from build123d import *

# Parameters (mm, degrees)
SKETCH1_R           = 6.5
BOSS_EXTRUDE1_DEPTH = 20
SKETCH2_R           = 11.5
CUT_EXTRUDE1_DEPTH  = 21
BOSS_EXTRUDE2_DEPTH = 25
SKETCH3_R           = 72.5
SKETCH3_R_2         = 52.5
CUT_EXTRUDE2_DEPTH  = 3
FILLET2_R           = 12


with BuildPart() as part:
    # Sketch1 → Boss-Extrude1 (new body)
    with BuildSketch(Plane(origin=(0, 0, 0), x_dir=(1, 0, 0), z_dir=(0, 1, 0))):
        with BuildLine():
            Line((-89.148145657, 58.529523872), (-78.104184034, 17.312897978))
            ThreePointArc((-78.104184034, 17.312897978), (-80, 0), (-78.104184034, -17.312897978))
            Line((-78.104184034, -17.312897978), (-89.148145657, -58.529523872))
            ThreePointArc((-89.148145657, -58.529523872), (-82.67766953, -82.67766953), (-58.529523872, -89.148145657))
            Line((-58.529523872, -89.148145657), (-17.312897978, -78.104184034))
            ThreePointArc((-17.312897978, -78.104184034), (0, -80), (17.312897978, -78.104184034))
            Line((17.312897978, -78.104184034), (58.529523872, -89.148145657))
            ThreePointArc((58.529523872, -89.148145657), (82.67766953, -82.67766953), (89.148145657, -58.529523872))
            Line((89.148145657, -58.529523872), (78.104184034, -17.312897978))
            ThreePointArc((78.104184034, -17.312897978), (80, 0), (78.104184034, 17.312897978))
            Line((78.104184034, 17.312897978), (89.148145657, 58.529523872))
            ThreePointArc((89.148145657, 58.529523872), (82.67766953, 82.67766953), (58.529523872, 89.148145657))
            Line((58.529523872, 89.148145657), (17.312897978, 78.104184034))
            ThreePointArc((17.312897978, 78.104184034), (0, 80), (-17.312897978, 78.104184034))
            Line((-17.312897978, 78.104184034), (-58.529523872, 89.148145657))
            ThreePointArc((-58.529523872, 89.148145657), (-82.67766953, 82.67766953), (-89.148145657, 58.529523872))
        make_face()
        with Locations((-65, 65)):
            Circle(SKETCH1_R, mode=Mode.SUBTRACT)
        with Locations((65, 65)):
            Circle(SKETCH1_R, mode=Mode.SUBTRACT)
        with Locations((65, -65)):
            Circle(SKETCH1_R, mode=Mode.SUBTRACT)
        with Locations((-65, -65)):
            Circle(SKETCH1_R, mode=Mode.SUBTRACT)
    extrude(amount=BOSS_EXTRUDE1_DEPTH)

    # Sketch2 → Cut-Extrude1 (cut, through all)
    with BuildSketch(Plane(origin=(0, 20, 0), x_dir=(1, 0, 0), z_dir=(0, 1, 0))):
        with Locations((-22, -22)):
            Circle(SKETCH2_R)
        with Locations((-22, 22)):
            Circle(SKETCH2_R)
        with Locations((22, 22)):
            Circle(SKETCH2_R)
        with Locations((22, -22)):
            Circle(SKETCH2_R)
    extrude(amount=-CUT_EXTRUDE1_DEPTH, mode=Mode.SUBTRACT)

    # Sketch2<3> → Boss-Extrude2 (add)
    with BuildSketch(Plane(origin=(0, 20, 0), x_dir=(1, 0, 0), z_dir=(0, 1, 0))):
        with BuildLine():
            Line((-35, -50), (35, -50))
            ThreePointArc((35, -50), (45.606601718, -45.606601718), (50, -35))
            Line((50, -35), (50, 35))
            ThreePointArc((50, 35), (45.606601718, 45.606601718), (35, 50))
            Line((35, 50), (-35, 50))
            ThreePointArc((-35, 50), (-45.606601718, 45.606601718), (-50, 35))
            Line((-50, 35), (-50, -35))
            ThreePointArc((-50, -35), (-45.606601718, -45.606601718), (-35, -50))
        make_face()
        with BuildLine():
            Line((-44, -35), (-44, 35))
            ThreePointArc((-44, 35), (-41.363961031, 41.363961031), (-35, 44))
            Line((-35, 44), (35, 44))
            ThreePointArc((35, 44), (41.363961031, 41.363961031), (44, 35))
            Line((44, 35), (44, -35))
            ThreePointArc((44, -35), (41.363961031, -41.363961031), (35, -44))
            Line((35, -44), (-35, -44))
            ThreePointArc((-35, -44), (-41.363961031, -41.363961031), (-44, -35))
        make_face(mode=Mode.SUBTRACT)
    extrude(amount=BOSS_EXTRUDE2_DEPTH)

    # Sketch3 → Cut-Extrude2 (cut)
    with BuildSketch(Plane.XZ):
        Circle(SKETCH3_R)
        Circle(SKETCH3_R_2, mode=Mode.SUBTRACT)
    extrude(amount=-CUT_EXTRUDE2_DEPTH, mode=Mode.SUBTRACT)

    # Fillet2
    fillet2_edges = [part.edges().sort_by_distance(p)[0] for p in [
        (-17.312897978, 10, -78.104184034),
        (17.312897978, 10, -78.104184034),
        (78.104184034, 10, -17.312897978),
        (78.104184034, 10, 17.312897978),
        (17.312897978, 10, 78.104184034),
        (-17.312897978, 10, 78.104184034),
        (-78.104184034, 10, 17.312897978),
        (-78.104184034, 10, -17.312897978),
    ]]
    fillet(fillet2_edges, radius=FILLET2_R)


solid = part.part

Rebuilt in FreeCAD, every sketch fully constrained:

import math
import FreeCAD as App
import Part
import Sketcher

V = App.Vector
Q = App.Units.Quantity


def edges_at(feature, points):
    """Names of the edges that pass closest to the given points."""
    edges = feature.Shape.Edges
    near = lambda p: min(range(len(edges)), key=lambda i: edges[i].distToShape(Part.Vertex(*p))[0])
    return sorted({f"Edge{near(p) + 1}" for p in points})

doc = App.newDocument("Part")
body = doc.addObject("PartDesign::Body", "Body")

# Sketch on XZ plane
sketch1 = body.newObject("Sketcher::SketchObject", "Sketch")
sketch1.AttachmentSupport = (doc.getObject("XZ_Plane"), [""])
sketch1.MapMode = "FlatFace"
sketch1.addGeometry([
    Part.LineSegment(V(-89.148146, -58.529524, 0), V(-78.104184, -17.312898, 0)),  # 0
    Part.ArcOfCircle(Part.Circle(V(0, 0, 0), V(0, 0, 1), 80), math.radians(167.501666), math.radians(192.498334)),  # 1
    Part.LineSegment(V(-78.104184, 17.312898, 0), V(-89.148146, 58.529524, 0)),  # 2
    Part.ArcOfCircle(Part.Circle(V(-65, 65, 0), V(0, 0, 1), 25), math.radians(75), math.radians(195)),  # 3
    Part.LineSegment(V(-58.529524, 89.148146, 0), V(-17.312898, 78.104184, 0)),  # 4
    Part.ArcOfCircle(Part.Circle(V(0, 0, 0), V(0, 0, 1), 80), math.radians(77.501666), math.radians(102.498334)),  # 5
    Part.LineSegment(V(17.312898, 78.104184, 0), V(58.529524, 89.148146, 0)),  # 6
    Part.ArcOfCircle(Part.Circle(V(65, 65, 0), V(0, 0, 1), 25), math.radians(-15), math.radians(105)),  # 7
    Part.LineSegment(V(89.148146, 58.529524, 0), V(78.104184, 17.312898, 0)),  # 8
    Part.ArcOfCircle(Part.Circle(V(0, 0, 0), V(0, 0, 1), 80), math.radians(-12.498334), math.radians(12.498334)),  # 9
    Part.LineSegment(V(78.104184, -17.312898, 0), V(89.148146, -58.529524, 0)),  # 10
    Part.ArcOfCircle(Part.Circle(V(65, -65, 0), V(0, 0, 1), 25), math.radians(-105), math.radians(15)),  # 11
    Part.LineSegment(V(58.529524, -89.148146, 0), V(17.312898, -78.104184, 0)),  # 12
    Part.ArcOfCircle(Part.Circle(V(0, 0, 0), V(0, 0, 1), 80), math.radians(-102.498334), math.radians(-77.501666)),  # 13
    Part.LineSegment(V(-17.312898, -78.104184, 0), V(-58.529524, -89.148146, 0)),  # 14
    Part.ArcOfCircle(Part.Circle(V(-65, -65, 0), V(0, 0, 1), 25), math.radians(165), math.radians(285)),  # 15
    Part.Circle(V(-65, 65, 0), V(0, 0, 1), 6.5),  # 16
    Part.Circle(V(65, 65, 0), V(0, 0, 1), 6.5),  # 17
    Part.Circle(V(-65, -65, 0), V(0, 0, 1), 6.5),  # 18
    Part.Circle(V(65, -65, 0), V(0, 0, 1), 6.5),  # 19
], False)
sketch1.addConstraint([
    Sketcher.Constraint("Coincident", 0, 2, 1, 2),
    Sketcher.Constraint("Coincident", 1, 1, 2, 1),
    Sketcher.Constraint("Tangent", 2, 2, 3, 2),
    Sketcher.Constraint("Tangent", 3, 1, 4, 1),
    Sketcher.Constraint("Coincident", 4, 2, 5, 2),
    Sketcher.Constraint("Coincident", 5, 1, 6, 1),
    Sketcher.Constraint("Tangent", 6, 2, 7, 2),
    Sketcher.Constraint("Tangent", 7, 1, 8, 1),
    Sketcher.Constraint("Coincident", 8, 2, 9, 2),
    Sketcher.Constraint("Coincident", 9, 1, 10, 1),
    Sketcher.Constraint("Tangent", 10, 2, 11, 2),
    Sketcher.Constraint("Tangent", 11, 1, 12, 1),
    Sketcher.Constraint("Coincident", 12, 2, 13, 2),
    Sketcher.Constraint("Coincident", 13, 1, 14, 1),
    Sketcher.Constraint("Tangent", 14, 2, 15, 2),
    Sketcher.Constraint("Tangent", 15, 1, 0, 1),
    Sketcher.Constraint("Coincident", 1, 3, -1, 1),
    Sketcher.Constraint("Coincident", 5, 3, -1, 1),
    Sketcher.Constraint("Coincident", 9, 3, -1, 1),
    Sketcher.Constraint("Coincident", 13, 3, -1, 1),
    Sketcher.Constraint("Coincident", 16, 3, 3, 3),
    Sketcher.Constraint("Coincident", 17, 3, 7, 3),
    Sketcher.Constraint("Coincident", 18, 3, 15, 3),
    Sketcher.Constraint("Coincident", 19, 3, 11, 3),
    Sketcher.Constraint("Equal", 1, 5),
    Sketcher.Constraint("Equal", 3, 7),
    Sketcher.Constraint("Equal", 5, 9),
    Sketcher.Constraint("Equal", 7, 11),
    Sketcher.Constraint("Equal", 9, 13),
    Sketcher.Constraint("Equal", 11, 15),
    Sketcher.Constraint("Equal", 16, 17),
    Sketcher.Constraint("Equal", 17, 18),
    Sketcher.Constraint("Equal", 18, 19),
    Sketcher.Constraint("Symmetric", 3, 3, 11, 3, -1, 1),
    Sketcher.Constraint("Symmetric", 7, 3, 15, 3, -1, 1),
    Sketcher.Constraint("Symmetric", 3, 3, 7, 3, -2),
    Sketcher.Constraint("Perpendicular", 0, 4),
    Sketcher.Constraint("Perpendicular", 2, 6),
    Sketcher.Constraint("Perpendicular", 4, 8),
    Sketcher.Constraint("Perpendicular", 6, 10),
    Sketcher.Constraint("Perpendicular", 8, 12),
    Sketcher.Constraint("Perpendicular", 10, 14),
    Sketcher.Constraint("Horizontal", 4, 2, 5, 1),
    Sketcher.Constraint("Equal", 2, 4),
    Sketcher.Constraint("Diameter", 16, 13.0),
    Sketcher.Constraint("Radius", 1, 80.0),
    Sketcher.Constraint("Radius", 3, 25.0),
    Sketcher.Constraint("Angle", 0, Q("75 deg")),
    Sketcher.Constraint("DistanceX", 3, 3, -1, 1, 65.0),
])
pad1 = body.newObject("PartDesign::Pad", "Pad")
pad1.Profile = sketch1
pad1.Length = 20
pad1.Reversed = True

# Sketch on XZ plane
sketch2 = body.newObject("Sketcher::SketchObject", "Sketch001")
sketch2.AttachmentSupport = (doc.getObject("XZ_Plane"), [""])
sketch2.MapMode = "FlatFace"
sketch2.AttachmentOffset = App.Placement(V(0, 0, -20), App.Rotation())
sketch2.addGeometry([
    Part.Circle(V(-22, 22, 0), V(0, 0, 1), 11.5),
    Part.Circle(V(-22, -22, 0), V(0, 0, 1), 11.5),
    Part.Circle(V(22, -22, 0), V(0, 0, 1), 11.5),
    Part.Circle(V(22, 22, 0), V(0, 0, 1), 11.5),
], False)
sketch2.addConstraint([
    Sketcher.Constraint("Equal", 0, 1),
    Sketcher.Constraint("Equal", 1, 2),
    Sketcher.Constraint("Equal", 2, 3),
    Sketcher.Constraint("Symmetric", 0, 3, 2, 3, -1, 1),
    Sketcher.Constraint("Symmetric", 1, 3, 3, 3, -1, 1),
    Sketcher.Constraint("Symmetric", 1, 3, 2, 3, -2),
    Sketcher.Constraint("Diameter", 0, 23.0),
    Sketcher.Constraint("DistanceX", 0, 3, -1, 1, 22.0),
    Sketcher.Constraint("DistanceY", -1, 1, 0, 3, 22.0),
])
pocket1 = body.newObject("PartDesign::Pocket", "Pocket")
pocket1.Profile = sketch2
pocket1.Type = "ThroughAll"
pocket1.Reversed = True

# Sketch on XZ plane
sketch3 = body.newObject("Sketcher::SketchObject", "Sketch002")
sketch3.AttachmentSupport = (doc.getObject("XZ_Plane"), [""])
sketch3.MapMode = "FlatFace"
sketch3.AttachmentOffset = App.Placement(V(0, 0, -20), App.Rotation())
sketch3.addGeometry([
    Part.LineSegment(V(-35, 50, 0), V(35, 50, 0)),  # 0
    Part.ArcOfCircle(Part.Circle(V(35, 35, 0), V(0, 0, 1), 15), math.radians(0), math.radians(90)),  # 1
    Part.LineSegment(V(50, 35, 0), V(50, -35, 0)),  # 2
    Part.ArcOfCircle(Part.Circle(V(35, -35, 0), V(0, 0, 1), 15), math.radians(-90), math.radians(0)),  # 3
    Part.LineSegment(V(35, -50, 0), V(-35, -50, 0)),  # 4
    Part.ArcOfCircle(Part.Circle(V(-35, -35, 0), V(0, 0, 1), 15), math.radians(180), math.radians(270)),  # 5
    Part.LineSegment(V(-50, -35, 0), V(-50, 35, 0)),  # 6
    Part.ArcOfCircle(Part.Circle(V(-35, 35, 0), V(0, 0, 1), 15), math.radians(90), math.radians(180)),  # 7
    Part.ArcOfCircle(Part.Circle(V(-35, 35, 0), V(0, 0, 1), 9), math.radians(90), math.radians(180)),  # 8
    Part.LineSegment(V(-44, 35, 0), V(-44, -35, 0)),  # 9
    Part.ArcOfCircle(Part.Circle(V(-35, -35, 0), V(0, 0, 1), 9), math.radians(180), math.radians(270)),  # 10
    Part.LineSegment(V(-35, -44, 0), V(35, -44, 0)),  # 11
    Part.ArcOfCircle(Part.Circle(V(35, -35, 0), V(0, 0, 1), 9), math.radians(-90), math.radians(0)),  # 12
    Part.LineSegment(V(44, -35, 0), V(44, 35, 0)),  # 13
    Part.ArcOfCircle(Part.Circle(V(35, 35, 0), V(0, 0, 1), 9), math.radians(0), math.radians(90)),  # 14
    Part.LineSegment(V(35, 44, 0), V(-35, 44, 0)),  # 15
], False)
sketch3.addConstraint([
    Sketcher.Constraint("Tangent", 0, 2, 1, 2),
    Sketcher.Constraint("Tangent", 1, 1, 2, 1),
    Sketcher.Constraint("Tangent", 2, 2, 3, 2),
    Sketcher.Constraint("Tangent", 3, 1, 4, 1),
    Sketcher.Constraint("Tangent", 4, 2, 5, 2),
    Sketcher.Constraint("Tangent", 5, 1, 6, 1),
    Sketcher.Constraint("Tangent", 6, 2, 7, 2),
    Sketcher.Constraint("Tangent", 7, 1, 0, 1),
    Sketcher.Constraint("Tangent", 8, 2, 9, 1),
    Sketcher.Constraint("Tangent", 9, 2, 10, 1),
    Sketcher.Constraint("Tangent", 10, 2, 11, 1),
    Sketcher.Constraint("Tangent", 11, 2, 12, 1),
    Sketcher.Constraint("Tangent", 12, 2, 13, 1),
    Sketcher.Constraint("Tangent", 13, 2, 14, 1),
    Sketcher.Constraint("Tangent", 14, 2, 15, 1),
    Sketcher.Constraint("Tangent", 15, 2, 8, 1),
    Sketcher.Constraint("Horizontal", 0),
    Sketcher.Constraint("Vertical", 2),
    Sketcher.Constraint("Horizontal", 4),
    Sketcher.Constraint("Vertical", 6),
    Sketcher.Constraint("Vertical", 9),
    Sketcher.Constraint("Horizontal", 11),
    Sketcher.Constraint("Vertical", 13),
    Sketcher.Constraint("Horizontal", 15),
    Sketcher.Constraint("Coincident", 8, 3, 7, 3),
    Sketcher.Constraint("Coincident", 10, 3, 5, 3),
    Sketcher.Constraint("Coincident", 12, 3, 3, 3),
    Sketcher.Constraint("Equal", 1, 3),
    Sketcher.Constraint("Equal", 3, 5),
    Sketcher.Constraint("Equal", 5, 7),
    Sketcher.Constraint("Equal", 12, 14),
    Sketcher.Constraint("Symmetric", 1, 3, 5, 3, -1, 1),
    Sketcher.Constraint("Equal", 15, 2),
    Sketcher.Constraint("Radius", 1, 15.0),
    Sketcher.Constraint("Radius", 8, 9.0),
    Sketcher.Constraint("DistanceX", 0, 1, 0, 2, 70.0),
])
pad2 = body.newObject("PartDesign::Pad", "Pad001")
pad2.Profile = sketch3
pad2.Length = 25
pad2.Reversed = True

# Sketch on XZ plane
sketch4 = body.newObject("Sketcher::SketchObject", "Sketch003")
sketch4.AttachmentSupport = (doc.getObject("XZ_Plane"), [""])
sketch4.MapMode = "FlatFace"
sketch4.addGeometry([
    Part.Circle(V(0, 0, 0), V(0, 0, 1), 72.5),
    Part.Circle(V(0, 0, 0), V(0, 0, 1), 52.5),
], False)
sketch4.addConstraint([
    Sketcher.Constraint("Coincident", 0, 3, -1, 1),
    Sketcher.Constraint("Coincident", 1, 3, -1, 1),
    Sketcher.Constraint("Diameter", 0, 145.0),
    Sketcher.Constraint("Diameter", 1, 105.0),
])
pocket2 = body.newObject("PartDesign::Pocket", "Pocket001")
pocket2.Profile = sketch4
pocket2.Length = 3
doc.recompute()

fillet = body.newObject("PartDesign::Fillet", "Fillet")
fillet.Base = (pocket2, edges_at(pocket2, [
    (-17.313, 10, -78.104),
    (17.313, 10, -78.104),
    (78.104, 10, -17.313),
    (78.104, 10, 17.313),
    (17.313, 10, 78.104),
    (-17.313, 10, 78.104),
    (-78.104, 10, 17.313),
    (-78.104, 10, -17.313),
]))
fillet.Radius = 12

doc.recompute()
